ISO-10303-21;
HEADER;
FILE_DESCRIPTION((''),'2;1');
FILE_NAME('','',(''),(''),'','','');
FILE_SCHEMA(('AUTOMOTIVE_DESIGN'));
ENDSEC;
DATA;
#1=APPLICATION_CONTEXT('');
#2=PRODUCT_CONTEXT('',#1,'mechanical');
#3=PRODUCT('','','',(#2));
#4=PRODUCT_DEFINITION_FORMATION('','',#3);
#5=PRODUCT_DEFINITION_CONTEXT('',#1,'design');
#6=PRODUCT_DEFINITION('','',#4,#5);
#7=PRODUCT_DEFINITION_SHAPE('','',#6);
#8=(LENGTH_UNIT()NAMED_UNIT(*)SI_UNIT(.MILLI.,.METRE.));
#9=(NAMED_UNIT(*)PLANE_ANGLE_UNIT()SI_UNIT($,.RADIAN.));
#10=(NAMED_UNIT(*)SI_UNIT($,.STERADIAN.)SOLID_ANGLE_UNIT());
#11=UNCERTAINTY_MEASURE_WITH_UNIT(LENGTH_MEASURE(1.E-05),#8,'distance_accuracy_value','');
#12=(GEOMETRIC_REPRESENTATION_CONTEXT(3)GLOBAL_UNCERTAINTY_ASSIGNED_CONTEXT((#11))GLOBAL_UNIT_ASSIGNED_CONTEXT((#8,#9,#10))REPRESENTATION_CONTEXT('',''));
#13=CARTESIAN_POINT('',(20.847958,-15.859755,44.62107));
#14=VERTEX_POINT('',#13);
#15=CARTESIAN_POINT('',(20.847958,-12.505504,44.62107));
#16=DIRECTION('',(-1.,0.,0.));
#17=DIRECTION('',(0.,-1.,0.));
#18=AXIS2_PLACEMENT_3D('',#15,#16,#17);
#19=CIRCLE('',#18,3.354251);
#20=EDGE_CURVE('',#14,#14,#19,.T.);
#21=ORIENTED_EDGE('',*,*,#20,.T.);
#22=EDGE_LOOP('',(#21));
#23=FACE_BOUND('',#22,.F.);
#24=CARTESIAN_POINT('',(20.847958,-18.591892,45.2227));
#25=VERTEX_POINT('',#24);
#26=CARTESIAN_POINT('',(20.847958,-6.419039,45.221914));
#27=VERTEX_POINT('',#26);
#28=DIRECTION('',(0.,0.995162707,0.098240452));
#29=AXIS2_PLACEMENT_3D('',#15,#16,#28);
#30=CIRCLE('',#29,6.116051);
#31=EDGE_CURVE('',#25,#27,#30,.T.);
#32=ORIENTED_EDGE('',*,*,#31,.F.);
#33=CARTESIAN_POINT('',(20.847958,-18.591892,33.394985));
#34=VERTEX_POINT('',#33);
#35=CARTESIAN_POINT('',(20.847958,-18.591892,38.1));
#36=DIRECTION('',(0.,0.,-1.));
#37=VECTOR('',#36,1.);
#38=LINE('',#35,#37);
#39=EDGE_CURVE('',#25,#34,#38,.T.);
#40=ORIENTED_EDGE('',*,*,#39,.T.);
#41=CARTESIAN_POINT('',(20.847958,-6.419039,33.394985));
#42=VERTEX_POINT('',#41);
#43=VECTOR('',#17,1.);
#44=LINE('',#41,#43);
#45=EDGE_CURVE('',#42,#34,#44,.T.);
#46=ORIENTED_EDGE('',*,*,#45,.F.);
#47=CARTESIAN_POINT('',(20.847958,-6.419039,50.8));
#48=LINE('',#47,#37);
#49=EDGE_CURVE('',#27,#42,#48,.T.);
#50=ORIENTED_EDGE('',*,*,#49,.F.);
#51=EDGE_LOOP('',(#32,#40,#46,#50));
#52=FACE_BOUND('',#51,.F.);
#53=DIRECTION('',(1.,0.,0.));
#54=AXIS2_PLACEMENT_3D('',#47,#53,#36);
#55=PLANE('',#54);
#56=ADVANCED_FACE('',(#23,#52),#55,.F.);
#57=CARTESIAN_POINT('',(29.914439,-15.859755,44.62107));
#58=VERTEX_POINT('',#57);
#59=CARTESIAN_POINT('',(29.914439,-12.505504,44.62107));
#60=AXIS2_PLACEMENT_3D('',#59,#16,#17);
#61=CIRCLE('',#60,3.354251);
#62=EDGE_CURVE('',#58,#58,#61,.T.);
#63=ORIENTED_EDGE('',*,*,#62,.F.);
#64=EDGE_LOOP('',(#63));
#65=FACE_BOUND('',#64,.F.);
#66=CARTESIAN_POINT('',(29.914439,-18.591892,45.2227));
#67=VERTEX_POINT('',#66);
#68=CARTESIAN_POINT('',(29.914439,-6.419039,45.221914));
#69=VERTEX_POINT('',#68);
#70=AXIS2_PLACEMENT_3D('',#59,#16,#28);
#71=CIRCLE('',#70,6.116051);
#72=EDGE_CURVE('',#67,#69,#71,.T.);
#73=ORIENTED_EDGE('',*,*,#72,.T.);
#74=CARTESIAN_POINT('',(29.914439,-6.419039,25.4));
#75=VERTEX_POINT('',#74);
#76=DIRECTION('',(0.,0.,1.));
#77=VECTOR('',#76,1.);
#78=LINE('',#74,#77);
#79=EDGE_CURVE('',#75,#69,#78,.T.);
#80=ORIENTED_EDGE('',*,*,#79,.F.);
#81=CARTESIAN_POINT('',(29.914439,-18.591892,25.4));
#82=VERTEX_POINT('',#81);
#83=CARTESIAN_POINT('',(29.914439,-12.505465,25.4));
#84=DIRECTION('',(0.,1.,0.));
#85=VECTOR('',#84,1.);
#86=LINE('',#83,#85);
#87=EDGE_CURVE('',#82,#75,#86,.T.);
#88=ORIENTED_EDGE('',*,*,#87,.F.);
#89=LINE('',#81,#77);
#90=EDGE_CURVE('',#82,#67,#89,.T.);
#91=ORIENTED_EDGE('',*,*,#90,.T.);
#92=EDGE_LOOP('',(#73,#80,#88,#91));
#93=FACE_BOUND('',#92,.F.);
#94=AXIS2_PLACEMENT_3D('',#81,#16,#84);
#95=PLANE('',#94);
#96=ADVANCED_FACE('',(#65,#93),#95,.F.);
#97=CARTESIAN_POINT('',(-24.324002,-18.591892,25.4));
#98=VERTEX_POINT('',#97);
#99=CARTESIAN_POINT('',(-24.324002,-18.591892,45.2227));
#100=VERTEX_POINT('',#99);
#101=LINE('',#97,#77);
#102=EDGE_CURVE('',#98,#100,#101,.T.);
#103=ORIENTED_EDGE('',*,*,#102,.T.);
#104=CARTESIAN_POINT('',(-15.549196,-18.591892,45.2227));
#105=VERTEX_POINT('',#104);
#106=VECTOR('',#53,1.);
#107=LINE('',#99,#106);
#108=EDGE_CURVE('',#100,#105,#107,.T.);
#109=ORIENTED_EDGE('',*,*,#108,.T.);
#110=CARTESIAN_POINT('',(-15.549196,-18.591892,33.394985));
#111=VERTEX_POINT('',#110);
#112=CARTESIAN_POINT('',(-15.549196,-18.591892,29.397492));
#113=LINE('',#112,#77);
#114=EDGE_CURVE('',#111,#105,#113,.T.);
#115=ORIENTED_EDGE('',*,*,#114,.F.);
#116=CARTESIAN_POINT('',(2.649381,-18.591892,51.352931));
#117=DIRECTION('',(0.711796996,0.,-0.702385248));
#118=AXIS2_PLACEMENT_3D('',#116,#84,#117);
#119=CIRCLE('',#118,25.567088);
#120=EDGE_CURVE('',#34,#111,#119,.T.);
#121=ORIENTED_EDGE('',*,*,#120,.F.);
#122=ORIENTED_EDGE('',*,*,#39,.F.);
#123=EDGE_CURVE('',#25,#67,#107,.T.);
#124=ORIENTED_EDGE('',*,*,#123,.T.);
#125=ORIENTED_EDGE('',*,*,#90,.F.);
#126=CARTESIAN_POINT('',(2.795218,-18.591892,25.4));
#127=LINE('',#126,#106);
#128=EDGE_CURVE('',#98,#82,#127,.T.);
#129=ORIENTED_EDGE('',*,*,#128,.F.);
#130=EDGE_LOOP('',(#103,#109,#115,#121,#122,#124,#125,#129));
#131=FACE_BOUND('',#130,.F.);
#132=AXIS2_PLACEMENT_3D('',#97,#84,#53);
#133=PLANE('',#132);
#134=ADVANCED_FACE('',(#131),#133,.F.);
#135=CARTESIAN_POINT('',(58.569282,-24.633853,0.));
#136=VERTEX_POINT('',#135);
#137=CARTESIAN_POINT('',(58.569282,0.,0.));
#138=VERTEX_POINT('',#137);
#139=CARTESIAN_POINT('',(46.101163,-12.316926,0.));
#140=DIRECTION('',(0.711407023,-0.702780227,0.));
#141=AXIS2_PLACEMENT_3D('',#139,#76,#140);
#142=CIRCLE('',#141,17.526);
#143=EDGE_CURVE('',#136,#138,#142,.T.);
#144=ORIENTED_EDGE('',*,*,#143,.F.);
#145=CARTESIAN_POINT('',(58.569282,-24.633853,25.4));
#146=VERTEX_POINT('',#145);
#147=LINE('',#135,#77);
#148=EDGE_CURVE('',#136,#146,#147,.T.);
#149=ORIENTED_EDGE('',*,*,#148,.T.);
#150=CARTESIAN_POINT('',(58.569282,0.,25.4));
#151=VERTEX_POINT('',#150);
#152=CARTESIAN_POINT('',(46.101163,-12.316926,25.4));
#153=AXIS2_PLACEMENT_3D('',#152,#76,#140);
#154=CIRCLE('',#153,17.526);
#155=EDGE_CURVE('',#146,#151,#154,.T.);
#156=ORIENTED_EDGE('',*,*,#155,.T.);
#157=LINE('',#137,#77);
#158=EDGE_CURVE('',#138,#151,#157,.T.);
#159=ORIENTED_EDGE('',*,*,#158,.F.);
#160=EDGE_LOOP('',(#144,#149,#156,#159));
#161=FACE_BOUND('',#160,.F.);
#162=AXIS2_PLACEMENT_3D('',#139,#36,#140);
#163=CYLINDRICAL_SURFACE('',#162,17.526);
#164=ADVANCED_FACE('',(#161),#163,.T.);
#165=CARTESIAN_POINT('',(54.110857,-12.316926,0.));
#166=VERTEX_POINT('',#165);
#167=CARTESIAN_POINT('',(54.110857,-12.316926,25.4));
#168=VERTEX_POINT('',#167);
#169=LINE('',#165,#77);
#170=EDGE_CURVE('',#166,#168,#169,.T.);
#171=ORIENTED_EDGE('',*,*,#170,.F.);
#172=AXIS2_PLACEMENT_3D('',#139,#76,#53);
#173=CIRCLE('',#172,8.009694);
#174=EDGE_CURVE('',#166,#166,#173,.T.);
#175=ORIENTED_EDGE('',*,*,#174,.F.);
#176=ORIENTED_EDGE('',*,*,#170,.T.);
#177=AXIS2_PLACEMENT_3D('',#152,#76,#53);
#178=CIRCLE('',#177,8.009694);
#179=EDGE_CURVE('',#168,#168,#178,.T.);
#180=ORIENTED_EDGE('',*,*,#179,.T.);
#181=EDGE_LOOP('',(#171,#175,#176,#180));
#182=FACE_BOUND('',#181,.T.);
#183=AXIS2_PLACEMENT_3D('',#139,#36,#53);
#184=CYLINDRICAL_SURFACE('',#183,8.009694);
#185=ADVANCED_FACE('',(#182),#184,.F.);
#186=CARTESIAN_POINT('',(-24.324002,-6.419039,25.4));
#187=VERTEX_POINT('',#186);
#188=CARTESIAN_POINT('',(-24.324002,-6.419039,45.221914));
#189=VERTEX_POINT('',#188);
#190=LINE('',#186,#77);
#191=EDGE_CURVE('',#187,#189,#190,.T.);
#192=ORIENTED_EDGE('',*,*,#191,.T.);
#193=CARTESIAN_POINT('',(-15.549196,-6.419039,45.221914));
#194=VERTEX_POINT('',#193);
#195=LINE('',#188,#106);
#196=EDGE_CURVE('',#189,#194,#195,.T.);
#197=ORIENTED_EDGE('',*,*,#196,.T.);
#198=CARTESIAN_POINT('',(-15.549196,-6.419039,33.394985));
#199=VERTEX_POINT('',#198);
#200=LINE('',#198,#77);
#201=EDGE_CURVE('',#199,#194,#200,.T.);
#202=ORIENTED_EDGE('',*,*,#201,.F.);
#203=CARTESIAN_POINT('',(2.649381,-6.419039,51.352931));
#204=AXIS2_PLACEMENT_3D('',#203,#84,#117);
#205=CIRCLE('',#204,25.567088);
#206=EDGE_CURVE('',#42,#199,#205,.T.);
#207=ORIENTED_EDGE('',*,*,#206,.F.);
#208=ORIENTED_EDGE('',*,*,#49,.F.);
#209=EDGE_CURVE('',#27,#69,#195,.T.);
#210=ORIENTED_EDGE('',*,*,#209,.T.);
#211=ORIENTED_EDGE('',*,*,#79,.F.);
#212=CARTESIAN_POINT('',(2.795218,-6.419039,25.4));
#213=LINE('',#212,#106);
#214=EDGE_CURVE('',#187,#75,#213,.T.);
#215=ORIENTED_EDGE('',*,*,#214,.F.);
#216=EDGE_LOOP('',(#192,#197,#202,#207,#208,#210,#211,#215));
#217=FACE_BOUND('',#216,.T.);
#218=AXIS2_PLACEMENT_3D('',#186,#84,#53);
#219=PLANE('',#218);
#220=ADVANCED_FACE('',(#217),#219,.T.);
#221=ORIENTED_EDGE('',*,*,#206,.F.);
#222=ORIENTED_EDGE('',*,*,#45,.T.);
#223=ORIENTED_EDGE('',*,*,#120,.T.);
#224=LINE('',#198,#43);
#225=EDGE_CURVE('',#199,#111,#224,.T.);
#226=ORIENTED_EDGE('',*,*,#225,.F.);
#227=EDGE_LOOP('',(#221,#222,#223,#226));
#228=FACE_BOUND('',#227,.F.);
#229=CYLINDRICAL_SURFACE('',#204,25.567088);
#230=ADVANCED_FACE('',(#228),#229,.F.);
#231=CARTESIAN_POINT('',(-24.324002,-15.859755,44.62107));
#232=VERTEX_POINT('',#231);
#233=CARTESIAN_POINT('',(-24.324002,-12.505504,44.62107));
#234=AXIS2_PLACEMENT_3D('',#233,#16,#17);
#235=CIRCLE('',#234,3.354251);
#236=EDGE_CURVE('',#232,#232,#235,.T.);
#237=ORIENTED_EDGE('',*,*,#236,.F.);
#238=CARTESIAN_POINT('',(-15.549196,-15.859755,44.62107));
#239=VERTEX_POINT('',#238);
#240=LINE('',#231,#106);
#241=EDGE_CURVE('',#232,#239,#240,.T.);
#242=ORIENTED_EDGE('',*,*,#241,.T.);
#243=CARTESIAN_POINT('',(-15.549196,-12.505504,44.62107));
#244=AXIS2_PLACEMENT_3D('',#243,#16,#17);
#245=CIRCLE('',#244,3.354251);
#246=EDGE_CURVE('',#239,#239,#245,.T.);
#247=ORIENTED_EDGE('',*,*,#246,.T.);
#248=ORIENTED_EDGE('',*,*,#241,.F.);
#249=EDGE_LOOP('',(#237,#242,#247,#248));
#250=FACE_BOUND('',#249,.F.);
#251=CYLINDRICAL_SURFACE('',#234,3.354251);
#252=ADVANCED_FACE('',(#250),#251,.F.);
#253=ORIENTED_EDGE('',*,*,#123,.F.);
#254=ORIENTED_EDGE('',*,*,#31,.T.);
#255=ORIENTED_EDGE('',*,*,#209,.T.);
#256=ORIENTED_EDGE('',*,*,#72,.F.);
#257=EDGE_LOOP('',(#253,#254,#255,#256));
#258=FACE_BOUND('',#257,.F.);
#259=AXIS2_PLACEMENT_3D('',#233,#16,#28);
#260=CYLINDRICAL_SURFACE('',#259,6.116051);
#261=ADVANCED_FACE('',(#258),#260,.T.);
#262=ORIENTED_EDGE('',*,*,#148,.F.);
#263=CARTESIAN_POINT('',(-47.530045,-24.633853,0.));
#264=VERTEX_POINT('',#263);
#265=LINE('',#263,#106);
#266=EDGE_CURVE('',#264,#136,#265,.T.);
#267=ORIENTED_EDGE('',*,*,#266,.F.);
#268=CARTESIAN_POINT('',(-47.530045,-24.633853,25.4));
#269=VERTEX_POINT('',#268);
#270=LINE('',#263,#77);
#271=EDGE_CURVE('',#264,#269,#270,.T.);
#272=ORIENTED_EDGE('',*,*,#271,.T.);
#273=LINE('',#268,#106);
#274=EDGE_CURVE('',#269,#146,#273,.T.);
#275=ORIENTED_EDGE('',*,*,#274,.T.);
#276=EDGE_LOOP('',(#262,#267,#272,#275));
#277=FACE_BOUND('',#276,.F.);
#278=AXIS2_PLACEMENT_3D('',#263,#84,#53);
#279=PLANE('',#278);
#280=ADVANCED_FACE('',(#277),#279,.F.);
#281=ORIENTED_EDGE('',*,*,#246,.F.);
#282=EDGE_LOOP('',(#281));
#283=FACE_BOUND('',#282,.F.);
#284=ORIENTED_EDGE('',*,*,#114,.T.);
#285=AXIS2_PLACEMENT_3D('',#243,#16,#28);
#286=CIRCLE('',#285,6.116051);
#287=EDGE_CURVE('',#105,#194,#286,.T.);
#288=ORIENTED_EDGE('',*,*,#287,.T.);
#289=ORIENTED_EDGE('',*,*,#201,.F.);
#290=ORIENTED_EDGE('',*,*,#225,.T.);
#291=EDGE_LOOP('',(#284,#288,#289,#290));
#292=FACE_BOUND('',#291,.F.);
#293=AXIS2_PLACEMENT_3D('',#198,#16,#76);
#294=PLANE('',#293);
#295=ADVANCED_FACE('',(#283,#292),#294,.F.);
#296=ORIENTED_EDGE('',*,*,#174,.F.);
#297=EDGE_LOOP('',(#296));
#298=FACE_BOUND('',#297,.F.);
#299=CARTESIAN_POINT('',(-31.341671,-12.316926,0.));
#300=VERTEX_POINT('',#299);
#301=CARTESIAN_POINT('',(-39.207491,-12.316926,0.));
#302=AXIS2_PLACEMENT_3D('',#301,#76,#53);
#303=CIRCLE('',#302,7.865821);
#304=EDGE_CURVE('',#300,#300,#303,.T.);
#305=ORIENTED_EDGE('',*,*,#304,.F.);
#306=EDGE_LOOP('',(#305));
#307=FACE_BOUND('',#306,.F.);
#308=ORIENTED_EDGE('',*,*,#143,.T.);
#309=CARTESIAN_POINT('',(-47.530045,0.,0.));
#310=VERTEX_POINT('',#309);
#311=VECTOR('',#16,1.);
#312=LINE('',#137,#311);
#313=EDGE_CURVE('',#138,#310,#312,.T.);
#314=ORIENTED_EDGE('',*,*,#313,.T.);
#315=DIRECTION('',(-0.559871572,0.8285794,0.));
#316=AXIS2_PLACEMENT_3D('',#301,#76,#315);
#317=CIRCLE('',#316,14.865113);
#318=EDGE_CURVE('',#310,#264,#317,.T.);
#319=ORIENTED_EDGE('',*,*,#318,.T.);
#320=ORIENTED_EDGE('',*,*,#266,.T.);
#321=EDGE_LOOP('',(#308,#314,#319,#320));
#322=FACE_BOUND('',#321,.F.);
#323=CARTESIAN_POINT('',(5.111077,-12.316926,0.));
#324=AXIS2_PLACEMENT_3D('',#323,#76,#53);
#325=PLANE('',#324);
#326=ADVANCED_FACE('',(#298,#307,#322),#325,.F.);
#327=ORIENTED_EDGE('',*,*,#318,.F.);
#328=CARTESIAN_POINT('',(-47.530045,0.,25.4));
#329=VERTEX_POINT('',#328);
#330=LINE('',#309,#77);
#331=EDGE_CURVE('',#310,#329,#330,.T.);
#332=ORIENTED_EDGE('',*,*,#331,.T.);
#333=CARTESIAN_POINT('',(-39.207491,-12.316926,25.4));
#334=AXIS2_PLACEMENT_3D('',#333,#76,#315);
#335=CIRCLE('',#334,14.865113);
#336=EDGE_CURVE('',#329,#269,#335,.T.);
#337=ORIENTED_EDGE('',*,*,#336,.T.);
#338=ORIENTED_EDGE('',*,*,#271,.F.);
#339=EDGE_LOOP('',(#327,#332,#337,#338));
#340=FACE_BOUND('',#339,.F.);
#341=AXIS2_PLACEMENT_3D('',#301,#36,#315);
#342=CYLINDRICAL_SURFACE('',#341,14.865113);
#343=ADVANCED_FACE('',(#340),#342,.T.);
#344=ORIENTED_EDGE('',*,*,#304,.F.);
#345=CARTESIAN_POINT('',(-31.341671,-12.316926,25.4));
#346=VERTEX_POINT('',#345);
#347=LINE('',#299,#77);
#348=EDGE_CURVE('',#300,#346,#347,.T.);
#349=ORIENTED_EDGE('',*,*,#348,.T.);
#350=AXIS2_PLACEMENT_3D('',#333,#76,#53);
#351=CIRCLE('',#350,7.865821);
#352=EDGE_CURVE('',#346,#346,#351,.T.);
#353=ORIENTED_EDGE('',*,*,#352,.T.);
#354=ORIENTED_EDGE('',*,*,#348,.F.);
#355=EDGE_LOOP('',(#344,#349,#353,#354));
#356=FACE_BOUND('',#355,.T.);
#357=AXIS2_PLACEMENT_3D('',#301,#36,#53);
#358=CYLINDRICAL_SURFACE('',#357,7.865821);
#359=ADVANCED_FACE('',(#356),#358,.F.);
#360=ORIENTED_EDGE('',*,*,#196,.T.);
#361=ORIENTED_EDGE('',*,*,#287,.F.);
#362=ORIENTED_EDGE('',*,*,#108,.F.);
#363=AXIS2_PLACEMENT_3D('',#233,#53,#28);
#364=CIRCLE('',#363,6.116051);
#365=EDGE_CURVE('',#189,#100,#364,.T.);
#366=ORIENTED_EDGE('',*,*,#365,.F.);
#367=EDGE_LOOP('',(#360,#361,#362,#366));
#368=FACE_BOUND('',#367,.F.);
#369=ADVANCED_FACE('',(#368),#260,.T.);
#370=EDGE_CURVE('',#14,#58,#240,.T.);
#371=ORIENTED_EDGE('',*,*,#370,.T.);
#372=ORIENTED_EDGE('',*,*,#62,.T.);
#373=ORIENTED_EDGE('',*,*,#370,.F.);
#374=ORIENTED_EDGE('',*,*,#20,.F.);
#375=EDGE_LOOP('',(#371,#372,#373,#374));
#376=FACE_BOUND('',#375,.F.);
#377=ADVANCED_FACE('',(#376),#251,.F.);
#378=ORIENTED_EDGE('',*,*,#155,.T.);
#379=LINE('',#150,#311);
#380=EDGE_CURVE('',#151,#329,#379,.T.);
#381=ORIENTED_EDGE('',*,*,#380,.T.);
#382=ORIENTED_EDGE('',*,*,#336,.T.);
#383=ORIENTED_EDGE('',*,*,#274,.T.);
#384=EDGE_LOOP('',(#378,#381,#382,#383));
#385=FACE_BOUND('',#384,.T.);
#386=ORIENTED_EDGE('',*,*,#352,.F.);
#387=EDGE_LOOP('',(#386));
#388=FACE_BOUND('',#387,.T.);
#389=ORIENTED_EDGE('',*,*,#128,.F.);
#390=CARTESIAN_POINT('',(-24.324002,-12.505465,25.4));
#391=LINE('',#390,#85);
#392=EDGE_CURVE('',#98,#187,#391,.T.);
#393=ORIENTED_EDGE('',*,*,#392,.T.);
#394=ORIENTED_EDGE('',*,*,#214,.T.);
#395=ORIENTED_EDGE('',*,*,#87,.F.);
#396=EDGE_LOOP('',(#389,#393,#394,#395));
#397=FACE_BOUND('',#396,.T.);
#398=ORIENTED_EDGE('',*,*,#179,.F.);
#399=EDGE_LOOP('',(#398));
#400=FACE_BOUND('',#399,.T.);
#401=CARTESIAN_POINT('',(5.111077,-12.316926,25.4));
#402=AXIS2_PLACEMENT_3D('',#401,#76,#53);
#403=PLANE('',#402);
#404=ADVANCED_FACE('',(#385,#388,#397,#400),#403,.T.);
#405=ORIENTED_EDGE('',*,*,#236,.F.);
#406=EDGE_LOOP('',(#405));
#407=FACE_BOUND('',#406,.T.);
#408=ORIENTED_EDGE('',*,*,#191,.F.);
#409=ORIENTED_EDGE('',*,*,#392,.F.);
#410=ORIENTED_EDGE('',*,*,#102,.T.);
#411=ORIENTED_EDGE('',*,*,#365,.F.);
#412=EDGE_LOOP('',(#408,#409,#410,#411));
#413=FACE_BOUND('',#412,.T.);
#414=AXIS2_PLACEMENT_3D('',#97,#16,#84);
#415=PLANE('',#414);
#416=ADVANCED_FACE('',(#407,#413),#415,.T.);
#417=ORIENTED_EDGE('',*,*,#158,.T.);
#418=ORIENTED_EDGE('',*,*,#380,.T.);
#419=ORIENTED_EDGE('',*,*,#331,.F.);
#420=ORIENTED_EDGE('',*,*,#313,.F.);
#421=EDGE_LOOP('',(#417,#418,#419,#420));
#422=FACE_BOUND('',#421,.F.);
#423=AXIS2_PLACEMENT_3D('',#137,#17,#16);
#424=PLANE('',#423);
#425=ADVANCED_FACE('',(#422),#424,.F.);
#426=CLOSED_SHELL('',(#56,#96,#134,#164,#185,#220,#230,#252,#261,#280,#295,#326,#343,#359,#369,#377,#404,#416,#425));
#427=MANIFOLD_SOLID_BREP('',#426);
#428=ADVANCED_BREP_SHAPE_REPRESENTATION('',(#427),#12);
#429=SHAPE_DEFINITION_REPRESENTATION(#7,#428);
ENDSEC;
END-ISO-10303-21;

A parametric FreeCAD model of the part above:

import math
import FreeCAD as App
import Part
import Sketcher
from FreeCAD import Vector
Q = App.Units.Quantity

doc = App.newDocument("Part")
body = doc.addObject("PartDesign::Body", "Body")

sketch1 = body.newObject("Sketcher::SketchObject", "Sketch")
sketch1.AttachmentSupport = (doc.getObject("XY_Plane"), [""])
sketch1.MapMode = "FlatFace"
sketch1.addGeometry([
    Part.ArcOfCircle(Part.Circle(Vector(-39.207491, -12.316926, 0), Vector(0, 0, 1), 14.865113), math.radians(124.046917), math.radians(235.953083)),
    Part.LineSegment(Vector(-47.530045, -24.633853, 0), Vector(58.569282, -24.633853, 0)),
    Part.ArcOfCircle(Part.Circle(Vector(46.101163, -12.316926, 0), Vector(0, 0, 1), 17.526), math.radians(-44.65049), math.radians(44.65049)),
    Part.LineSegment(Vector(58.569282, 0, 0), Vector(-47.530045, 0, 0)),
    Part.Circle(Vector(-39.207491, -12.316926, 0), Vector(0, 0, 1), 7.865821),
    Part.Circle(Vector(46.101163, -12.316926, 0), Vector(0, 0, 1), 8.009694),
], False)
sketch1.addConstraint([
    Sketcher.Constraint("Coincident", 0, 2, 1, 1),
    Sketcher.Constraint("Coincident", 1, 2, 2, 1),
    Sketcher.Constraint("Coincident", 2, 2, 3, 1),
    Sketcher.Constraint("Coincident", 3, 2, 0, 1),
    Sketcher.Constraint("Horizontal", 1),
    Sketcher.Constraint("Horizontal", 3),
    Sketcher.Constraint("Coincident", 4, 3, 0, 3),
    Sketcher.Constraint("Coincident", 5, 3, 2, 3),
    Sketcher.Constraint("PointOnObject", 2, 2, -1),
    Sketcher.Constraint("Horizontal", 0, 3, 2, 3),
    Sketcher.Constraint("Vertical", 1, 2, 2, 2),
    Sketcher.Constraint("Radius", 2, Q("0.69 in")),
    Sketcher.Constraint("Diameter", 4, 15.731641),
    Sketcher.Constraint("Diameter", 5, 16.019389),
    Sketcher.Constraint("Radius", 0, 14.865113),
    Sketcher.Constraint("DistanceX", 1, 1, 1, 2, 106.099328),
    Sketcher.Constraint("DistanceX", 0, 3, -1, 1, 39.207491),
    Sketcher.Constraint("DistanceX", 0, 2, 2, 3, 93.631208),
])
pad1 = body.newObject("PartDesign::Pad", "Pad")
pad1.Profile = sketch1
pad1.Length = Q("1 in")

sketch2 = body.newObject("Sketcher::SketchObject", "Sketch001")
sketch2.AttachmentSupport = (doc.getObject("XY_Plane"), [""])
sketch2.MapMode = "FlatFace"
sketch2.AttachmentOffset = App.Placement(Vector(0, 0, 1 * 25.4), App.Rotation())
sketch2.addGeometry([
    Part.LineSegment(Vector(-24.324002, -6.419039, 0), Vector(-24.324002, -18.591892, 0)),
    Part.LineSegment(Vector(-24.324002, -18.591892, 0), Vector(29.914439, -18.591892, 0)),
    Part.LineSegment(Vector(29.914439, -18.591892, 0), Vector(29.914439, -6.419039, 0)),
    Part.LineSegment(Vector(29.914439, -6.419039, 0), Vector(-24.324002, -6.419039, 0)),
], False)
sketch2.addConstraint([
    Sketcher.Constraint("Coincident", 0, 2, 1, 1),
    Sketcher.Constraint("Coincident", 1, 2, 2, 1),
    Sketcher.Constraint("Coincident", 2, 2, 3, 1),
    Sketcher.Constraint("Coincident", 3, 2, 0, 1),
    Sketcher.Constraint("Vertical", 0),
    Sketcher.Constraint("Horizontal", 1),
    Sketcher.Constraint("Vertical", 2),
    Sketcher.Constraint("Horizontal", 3),
    Sketcher.Constraint("DistanceX", 1, 1, 1, 2, 54.23844),
    Sketcher.Constraint("DistanceX", 0, 2, -1, 1, 24.324002),
    Sketcher.Constraint("DistanceY", 0, 2, 0, 1, 12.172853),
    Sketcher.Constraint("DistanceY", 0, 2, -1, 1, 18.591892),
])
pad2 = body.newObject("PartDesign::Pad", "Pad001")
pad2.Profile = sketch2
pad2.Length = Q("1 in")

sketch3 = body.newObject("Sketcher::SketchObject", "Sketch002")
sketch3.AttachmentSupport = (doc.getObject("XZ_Plane"), [""])
sketch3.MapMode = "FlatFace"
sketch3.AttachmentOffset = App.Placement(Vector(0, 0, 6.419039), App.Rotation())
sketch3.addGeometry([
    Part.LineSegment(Vector(-15.549196, 50.8, 0), Vector(20.847958, 50.8, 0)),
    Part.LineSegment(Vector(20.847958, 50.8, 0), Vector(20.847958, 33.394985, 0)),
    Part.ArcOfCircle(Part.Circle(Vector(2.649381, 51.352931, 0), Vector(0, 0, 1), 25.567088), math.radians(-135.381313), math.radians(-44.618687)),
    Part.LineSegment(Vector(-15.549196, 33.394985, 0), Vector(-15.549196, 50.8, 0)),
], False)
sketch3.addConstraint([
    Sketcher.Constraint("Coincident", 0, 2, 1, 1),
    Sketcher.Constraint("Coincident", 1, 2, 2, 2),
    Sketcher.Constraint("Coincident", 2, 1, 3, 1),
    Sketcher.Constraint("Coincident", 3, 2, 0, 1),
    Sketcher.Constraint("Horizontal", 0),
    Sketcher.Constraint("Vertical", 1),
    Sketcher.Constraint("Vertical", 3),
    Sketcher.Constraint("Horizontal", 1, 2, 2, 1),
    Sketcher.Constraint("DistanceY", -1, 1, 0, 2, Q("2 in")),
    Sketcher.Constraint("Radius", 2, 25.567088),
    Sketcher.Constraint("DistanceX", 0, 1, 0, 2, 36.397154),
    Sketcher.Constraint("DistanceY", 1, 2, 1, 1, 17.405015),
    Sketcher.Constraint("DistanceX", -1, 1, 2, 3, 2.649381),
])
pocket1 = body.newObject("PartDesign::Pocket", "Pocket")
pocket1.Profile = sketch3
pocket1.Length = Q("1 in")
pocket1.Reversed = True

sketch4 = body.newObject("Sketcher::SketchObject", "Sketch003")
sketch4.AttachmentSupport = (doc.getObject("YZ_Plane"), [""])
sketch4.MapMode = "FlatFace"
sketch4.AttachmentOffset = App.Placement(Vector(0, 0, -24.324002), App.Rotation())
sketch4.addGeometry([
    Part.ArcOfCircle(Part.Circle(Vector(-12.505504, 44.62107, 0), Vector(0, 0, 1), 6.116051), math.radians(5.637857), math.radians(174.354744)),
    Part.LineSegment(Vector(-18.591892, 45.2227, 0), Vector(-18.591892, 50.8, 0)),
    Part.LineSegment(Vector(-18.591892, 50.8, 0), Vector(-6.419039, 50.8, 0)),
    Part.LineSegment(Vector(-6.419039, 50.8, 0), Vector(-6.419039, 45.221914, 0)),
    Part.Circle(Vector(-12.505504, 44.62107, 0), Vector(0, 0, 1), 3.354251),
], False)
sketch4.addConstraint([
    Sketcher.Constraint("Coincident", 0, 2, 1, 1),
    Sketcher.Constraint("Coincident", 1, 2, 2, 1),
    Sketcher.Constraint("Coincident", 2, 2, 3, 1),
    Sketcher.Constraint("Coincident", 3, 2, 0, 1),
    Sketcher.Constraint("Vertical", 1),
    Sketcher.Constraint("Horizontal", 2),
    Sketcher.Constraint("Vertical", 3),
    Sketcher.Constraint("Coincident", 4, 3, 0, 3),
    Sketcher.Constraint("DistanceY", -1, 1, 1, 2, Q("2 in")),
    Sketcher.Constraint("Radius", 0, 6.116051),
    Sketcher.Constraint("Diameter", 4, 6.708502),
    Sketcher.Constraint("DistanceY", 1, 1, 1, 2, 5.5773),
    Sketcher.Constraint("DistanceX", 2, 1, 2, 2, 12.172853),
    Sketcher.Constraint("DistanceY", 3, 2, 3, 1, 5.578086),
    Sketcher.Constraint("DistanceX", 0, 2, -1, 1, 18.591892),
])
pocket2 = body.newObject("PartDesign::Pocket", "Pocket001")
pocket2.Profile = sketch4
pocket2.Length = Q("3.07 in")
pocket2.Reversed = True

doc.recompute()
